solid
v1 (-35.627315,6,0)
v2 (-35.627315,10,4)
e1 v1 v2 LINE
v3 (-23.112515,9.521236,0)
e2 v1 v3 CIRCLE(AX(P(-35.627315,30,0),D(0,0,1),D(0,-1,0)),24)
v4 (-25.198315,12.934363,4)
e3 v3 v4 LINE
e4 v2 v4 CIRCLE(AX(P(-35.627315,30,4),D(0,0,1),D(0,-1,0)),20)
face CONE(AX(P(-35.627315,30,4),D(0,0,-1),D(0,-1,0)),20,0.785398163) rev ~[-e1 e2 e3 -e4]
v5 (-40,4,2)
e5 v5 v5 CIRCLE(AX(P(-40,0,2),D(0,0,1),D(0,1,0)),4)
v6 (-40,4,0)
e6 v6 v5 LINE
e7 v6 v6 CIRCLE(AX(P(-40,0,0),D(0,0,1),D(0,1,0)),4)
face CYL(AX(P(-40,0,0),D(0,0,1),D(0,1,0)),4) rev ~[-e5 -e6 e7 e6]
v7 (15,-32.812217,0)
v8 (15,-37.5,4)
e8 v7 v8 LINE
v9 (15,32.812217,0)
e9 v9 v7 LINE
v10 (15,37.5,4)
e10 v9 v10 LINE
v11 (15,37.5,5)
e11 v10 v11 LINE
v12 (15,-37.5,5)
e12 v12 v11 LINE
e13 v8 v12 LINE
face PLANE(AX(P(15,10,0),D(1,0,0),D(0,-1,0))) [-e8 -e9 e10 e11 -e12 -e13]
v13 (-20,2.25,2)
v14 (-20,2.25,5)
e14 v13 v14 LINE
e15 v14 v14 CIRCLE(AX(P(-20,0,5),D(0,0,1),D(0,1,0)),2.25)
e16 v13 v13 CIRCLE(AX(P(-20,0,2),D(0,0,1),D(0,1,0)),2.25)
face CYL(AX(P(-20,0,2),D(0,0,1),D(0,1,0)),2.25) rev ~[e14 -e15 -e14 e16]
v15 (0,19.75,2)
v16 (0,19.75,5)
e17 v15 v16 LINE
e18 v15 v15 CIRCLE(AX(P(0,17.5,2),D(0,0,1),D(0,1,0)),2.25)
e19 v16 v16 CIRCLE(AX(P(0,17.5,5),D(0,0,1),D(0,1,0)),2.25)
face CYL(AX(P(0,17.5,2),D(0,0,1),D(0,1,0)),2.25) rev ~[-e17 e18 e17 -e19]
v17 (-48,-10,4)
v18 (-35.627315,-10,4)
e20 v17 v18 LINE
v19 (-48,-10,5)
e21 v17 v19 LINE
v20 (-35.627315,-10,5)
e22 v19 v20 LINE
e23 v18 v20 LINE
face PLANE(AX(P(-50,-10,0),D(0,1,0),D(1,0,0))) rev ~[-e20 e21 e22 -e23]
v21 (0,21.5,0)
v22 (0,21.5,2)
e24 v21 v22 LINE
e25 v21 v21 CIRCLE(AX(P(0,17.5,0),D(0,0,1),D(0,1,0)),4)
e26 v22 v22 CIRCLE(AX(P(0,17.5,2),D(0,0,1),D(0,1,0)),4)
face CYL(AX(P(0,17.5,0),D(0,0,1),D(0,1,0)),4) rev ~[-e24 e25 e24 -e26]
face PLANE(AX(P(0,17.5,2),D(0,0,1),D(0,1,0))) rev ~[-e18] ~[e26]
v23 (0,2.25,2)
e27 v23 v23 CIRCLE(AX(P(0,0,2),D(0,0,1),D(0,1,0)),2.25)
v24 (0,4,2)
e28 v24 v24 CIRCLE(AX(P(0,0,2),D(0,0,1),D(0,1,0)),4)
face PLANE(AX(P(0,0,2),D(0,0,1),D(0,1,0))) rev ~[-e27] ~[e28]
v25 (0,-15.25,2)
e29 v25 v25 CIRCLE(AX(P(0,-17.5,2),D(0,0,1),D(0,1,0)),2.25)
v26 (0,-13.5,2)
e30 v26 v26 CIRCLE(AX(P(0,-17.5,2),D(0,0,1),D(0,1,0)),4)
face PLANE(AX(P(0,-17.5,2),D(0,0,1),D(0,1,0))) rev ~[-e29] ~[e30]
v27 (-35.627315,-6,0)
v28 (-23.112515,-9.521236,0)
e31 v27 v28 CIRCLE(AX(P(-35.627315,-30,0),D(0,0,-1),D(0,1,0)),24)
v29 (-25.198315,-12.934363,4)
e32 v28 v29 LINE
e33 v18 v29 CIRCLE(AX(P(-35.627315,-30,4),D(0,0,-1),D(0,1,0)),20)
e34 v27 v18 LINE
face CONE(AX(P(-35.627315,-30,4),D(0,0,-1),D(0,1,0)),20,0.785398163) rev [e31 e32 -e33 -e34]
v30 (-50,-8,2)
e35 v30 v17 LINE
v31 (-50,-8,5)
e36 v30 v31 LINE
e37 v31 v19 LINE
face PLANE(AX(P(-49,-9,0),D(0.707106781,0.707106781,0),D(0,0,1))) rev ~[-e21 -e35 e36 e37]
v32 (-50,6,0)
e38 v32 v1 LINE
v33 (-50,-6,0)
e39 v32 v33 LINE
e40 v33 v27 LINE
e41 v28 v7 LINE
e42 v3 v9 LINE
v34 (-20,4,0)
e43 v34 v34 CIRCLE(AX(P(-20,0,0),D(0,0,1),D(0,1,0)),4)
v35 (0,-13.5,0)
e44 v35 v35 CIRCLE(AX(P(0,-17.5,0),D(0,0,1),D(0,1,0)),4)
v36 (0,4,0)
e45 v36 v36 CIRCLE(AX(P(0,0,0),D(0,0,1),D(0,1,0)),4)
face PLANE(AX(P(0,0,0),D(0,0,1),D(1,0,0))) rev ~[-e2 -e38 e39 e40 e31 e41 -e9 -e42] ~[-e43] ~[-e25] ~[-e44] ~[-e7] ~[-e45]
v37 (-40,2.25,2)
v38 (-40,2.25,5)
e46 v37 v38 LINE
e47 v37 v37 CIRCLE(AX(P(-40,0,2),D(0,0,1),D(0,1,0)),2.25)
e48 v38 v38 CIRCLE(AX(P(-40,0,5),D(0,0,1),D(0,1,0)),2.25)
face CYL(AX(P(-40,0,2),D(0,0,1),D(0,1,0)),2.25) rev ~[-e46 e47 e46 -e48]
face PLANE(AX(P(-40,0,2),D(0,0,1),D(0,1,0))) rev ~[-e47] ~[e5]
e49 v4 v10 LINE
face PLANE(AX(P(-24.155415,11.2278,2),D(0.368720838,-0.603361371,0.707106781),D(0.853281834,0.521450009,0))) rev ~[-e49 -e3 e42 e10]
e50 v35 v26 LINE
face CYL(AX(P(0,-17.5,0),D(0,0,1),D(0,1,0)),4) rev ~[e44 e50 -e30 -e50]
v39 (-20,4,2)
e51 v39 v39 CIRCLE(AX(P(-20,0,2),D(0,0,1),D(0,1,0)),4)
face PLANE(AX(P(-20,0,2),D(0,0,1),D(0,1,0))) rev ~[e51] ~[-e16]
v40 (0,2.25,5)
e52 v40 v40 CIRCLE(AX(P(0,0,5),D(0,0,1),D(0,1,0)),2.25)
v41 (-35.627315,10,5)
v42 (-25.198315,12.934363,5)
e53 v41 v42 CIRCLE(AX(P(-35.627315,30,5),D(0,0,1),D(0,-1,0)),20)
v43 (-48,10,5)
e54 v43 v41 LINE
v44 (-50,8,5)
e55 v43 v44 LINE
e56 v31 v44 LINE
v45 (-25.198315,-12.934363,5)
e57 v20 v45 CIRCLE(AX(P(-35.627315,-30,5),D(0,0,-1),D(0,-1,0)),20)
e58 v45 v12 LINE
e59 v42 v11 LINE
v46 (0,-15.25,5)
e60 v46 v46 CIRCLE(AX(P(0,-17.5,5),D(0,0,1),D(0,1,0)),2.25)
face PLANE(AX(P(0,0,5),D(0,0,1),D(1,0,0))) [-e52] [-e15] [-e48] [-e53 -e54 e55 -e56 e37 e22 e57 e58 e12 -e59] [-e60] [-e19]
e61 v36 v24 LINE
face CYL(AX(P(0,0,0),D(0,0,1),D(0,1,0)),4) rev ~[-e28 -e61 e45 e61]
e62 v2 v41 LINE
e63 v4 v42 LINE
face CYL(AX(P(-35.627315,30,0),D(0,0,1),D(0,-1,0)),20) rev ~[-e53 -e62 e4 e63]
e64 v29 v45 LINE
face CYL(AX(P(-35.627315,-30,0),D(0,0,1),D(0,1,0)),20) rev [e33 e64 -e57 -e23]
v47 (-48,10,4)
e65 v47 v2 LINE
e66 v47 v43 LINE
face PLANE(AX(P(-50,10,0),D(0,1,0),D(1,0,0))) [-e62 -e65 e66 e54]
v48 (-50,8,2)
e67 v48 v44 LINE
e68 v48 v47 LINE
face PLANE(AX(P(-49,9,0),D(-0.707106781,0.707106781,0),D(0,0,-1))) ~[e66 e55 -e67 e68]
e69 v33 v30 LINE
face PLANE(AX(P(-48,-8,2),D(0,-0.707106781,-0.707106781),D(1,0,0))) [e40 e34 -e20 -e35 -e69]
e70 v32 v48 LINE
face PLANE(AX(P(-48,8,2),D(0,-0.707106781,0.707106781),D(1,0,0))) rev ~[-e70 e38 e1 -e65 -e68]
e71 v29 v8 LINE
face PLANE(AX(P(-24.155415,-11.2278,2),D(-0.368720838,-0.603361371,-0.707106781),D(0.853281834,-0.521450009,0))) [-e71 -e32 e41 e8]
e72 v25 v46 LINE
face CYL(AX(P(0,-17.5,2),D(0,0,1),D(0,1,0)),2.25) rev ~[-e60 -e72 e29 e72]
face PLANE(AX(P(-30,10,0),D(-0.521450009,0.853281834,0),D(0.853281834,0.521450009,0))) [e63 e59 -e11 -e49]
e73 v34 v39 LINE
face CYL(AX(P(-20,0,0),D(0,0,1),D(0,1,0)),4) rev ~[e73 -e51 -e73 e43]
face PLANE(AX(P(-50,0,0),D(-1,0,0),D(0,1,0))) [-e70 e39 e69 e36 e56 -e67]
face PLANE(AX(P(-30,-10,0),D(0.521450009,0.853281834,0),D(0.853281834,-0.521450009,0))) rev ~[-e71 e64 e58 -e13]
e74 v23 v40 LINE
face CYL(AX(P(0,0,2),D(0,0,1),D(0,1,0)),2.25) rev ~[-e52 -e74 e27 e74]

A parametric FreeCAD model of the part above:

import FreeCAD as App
import Part
import Sketcher
from FreeCAD import Vector
Q = App.Units.Quantity


def edges_at(feature, points):
    """Names of the edges that pass closest to the given points."""
    edges = feature.Shape.Edges
    near = lambda p: min(range(len(edges)), key=lambda i: edges[i].distToShape(Part.Vertex(*p))[0])
    return sorted({f"Edge{near(p) + 1}" for p in points})

doc = App.newDocument("Part")
params = doc.addObject("Spreadsheet::Sheet", "Params")
for row, (alias, value) in enumerate([
    ("sketch1_width", "20 mm"),
    ("sketch1_height", "75 mm"),
    ("pad1_length", "5 mm"),
    ("sketch2_diameter", "4.5 mm"),
    ("hole_diameter", "4.5 mm"),
    ("hole_cbore_diameter", "8 mm"),
    ("hole_cbore_depth", "2 mm"),
    ("fillet_radius", "20 mm"),
    ("chamfer_size", "2 mm"),
    ("chamfer2_size", "4 mm"),
], start=1):
    params.set(f"A{row}", alias)
    params.set(f"B{row}", "=" + value)
    params.setAlias(f"B{row}", alias)

body = doc.addObject("PartDesign::Body", "Body")

# Sketch on XY plane
sketch1 = body.newObject("Sketcher::SketchObject", "Sketch")
sketch1.AttachmentSupport = (doc.getObject("XY_Plane"), [""])
sketch1.MapMode = "FlatFace"
sketch1.addGeometry(Part.LineSegment(Vector(-50, 10, 0), Vector(-50, -10, 0)), False)
sketch1.addGeometry(Part.LineSegment(Vector(-50, -10, 0), Vector(-30, -10, 0)), False)
sketch1.addGeometry(Part.LineSegment(Vector(-30, -10, 0), Vector(15, -38, 0)), False)
sketch1.addGeometry(Part.LineSegment(Vector(15, -38, 0), Vector(15, 38, 0)), False)
sketch1.addGeometry(Part.LineSegment(Vector(15, 38, 0), Vector(-30, 10, 0)), False)
sketch1.addGeometry(Part.LineSegment(Vector(-30, 10, 0), Vector(-50, 10, 0)), False)
sketch1.addConstraint(Sketcher.Constraint("Coincident", 0, 2, 1, 1))
sketch1.addConstraint(Sketcher.Constraint("Coincident", 1, 2, 2, 1))
sketch1.addConstraint(Sketcher.Constraint("Coincident", 2, 2, 3, 1))
sketch1.addConstraint(Sketcher.Constraint("Coincident", 3, 2, 4, 1))
sketch1.addConstraint(Sketcher.Constraint("Coincident", 4, 2, 5, 1))
sketch1.addConstraint(Sketcher.Constraint("Coincident", 5, 2, 0, 1))
sketch1.addConstraint(Sketcher.Constraint("Vertical", 0))
sketch1.addConstraint(Sketcher.Constraint("Horizontal", 1))
sketch1.addConstraint(Sketcher.Constraint("Vertical", 3))
sketch1.addConstraint(Sketcher.Constraint("Horizontal", 5))
sketch1.addConstraint(Sketcher.Constraint("Symmetric", 1, 2, 4, 2, -1))
sketch1.addConstraint(Sketcher.Constraint("Equal", 5, 0))
sketch1.addConstraint(Sketcher.Constraint("Equal", 2, 4))
sketch1.addConstraint(Sketcher.Constraint("DistanceX", 1, 1, 1, 2, Q("20 mm")))
sketch1.addConstraint(Sketcher.Constraint("DistanceY", 3, 1, 3, 2, Q("75 mm")))
sketch1.addConstraint(Sketcher.Constraint("DistanceX", 0, 2, -1, 1, Q("50 mm")))
sketch1.addConstraint(Sketcher.Constraint("DistanceX", 0, 2, 2, 2, Q("65 mm")))
sketch1.setExpression("Constraints[13]", "Params.sketch1_width")
sketch1.setExpression("Constraints[14]", "Params.sketch1_height")
pad1 = body.newObject("PartDesign::Pad", "Pad")
pad1.Profile = sketch1
pad1.setExpression("Length", "Params.pad1_length")

# Sketch on XY plane
sketch2 = body.newObject("Sketcher::SketchObject", "Sketch001")
sketch2.AttachmentSupport = (doc.getObject("XY_Plane"), [""])
sketch2.MapMode = "FlatFace"
sketch2.addGeometry(Part.Circle(Vector(0, 17.5, 0), Vector(0, 0, 1), 2.2), False)
sketch2.addGeometry(Part.Circle(Vector(0, -17.5, 0), Vector(0, 0, 1), 2.2), False)
sketch2.addGeometry(Part.Circle(Vector(-40, 0, 0), Vector(0, 0, 1), 2.2), False)
sketch2.addGeometry(Part.Circle(Vector(0, 0, 0), Vector(0, 0, 1), 2.2), False)
sketch2.addGeometry(Part.Circle(Vector(-20, 0, 0), Vector(0, 0, 1), 2.2), False)
sketch2.addConstraint(Sketcher.Constraint("Coincident", 3, 3, -1, 1))
sketch2.addConstraint(Sketcher.Constraint("Equal", 0, 1))
sketch2.addConstraint(Sketcher.Constraint("Equal", 1, 2))
sketch2.addConstraint(Sketcher.Constraint("Equal", 2, 3))
sketch2.addConstraint(Sketcher.Constraint("Equal", 3, 4))
sketch2.addConstraint(Sketcher.Constraint("Symmetric", 0, 3, 1, 3, -1, 1))
sketch2.addConstraint(Sketcher.Constraint("PointOnObject", 0, 3, -2))
sketch2.addConstraint(Sketcher.Constraint("PointOnObject", 2, 3, -1))
sketch2.addConstraint(Sketcher.Constraint("PointOnObject", 4, 3, -1))
sketch2.addConstraint(Sketcher.Constraint("Diameter", 0, Q("4.5 mm")))
sketch2.addConstraint(Sketcher.Constraint("DistanceX", 2, 3, -1, 1, Q("40 mm")))
sketch2.addConstraint(Sketcher.Constraint("DistanceX", 4, 3, -1, 1, Q("20 mm")))
sketch2.addConstraint(Sketcher.Constraint("DistanceY", 1, 3, 0, 3, Q("35 mm")))
sketch2.setExpression("Constraints[9]", "Params.sketch2_diameter")
doc.recompute()
hole = body.newObject("PartDesign::Hole", "Hole")
hole.Profile = sketch2
hole.ThreadType = "None"
hole.setExpression("Diameter", "Params.hole_diameter")
hole.DepthType = "ThroughAll"
hole.HoleCutType = "Counterbore"
hole.setExpression("HoleCutDiameter", "Params.hole_cbore_diameter")
hole.setExpression("HoleCutDepth", "Params.hole_cbore_depth")
hole.Reversed = True
doc.recompute()

fillet = body.newObject("PartDesign::Fillet", "Fillet")
fillet.Base = (hole, edges_at(hole, [(-30, 10, 2.5), (-30, -10, 2.5)]))
fillet.setExpression("Radius", "Params.fillet_radius")
doc.recompute()

chamfer = body.newObject("PartDesign::Chamfer", "Chamfer")
chamfer.Base = (fillet, edges_at(fillet, [(-50, 10, 2.5), (-50, -10, 2.5)]))
chamfer.setExpression("Size", "Params.chamfer_size")
doc.recompute()

chamfer2 = body.newObject("PartDesign::Chamfer", "Chamfer001")
chamfer2.Base = (chamfer, edges_at(chamfer, [
    (-5.099, 25.217, 0),
    (-41.814, 10, 0),
    (-41.814, -10, 0),
    (-5.099, -25.217, 0),
]))
chamfer2.setExpression("Size", "Params.chamfer2_size")

doc.recompute()
